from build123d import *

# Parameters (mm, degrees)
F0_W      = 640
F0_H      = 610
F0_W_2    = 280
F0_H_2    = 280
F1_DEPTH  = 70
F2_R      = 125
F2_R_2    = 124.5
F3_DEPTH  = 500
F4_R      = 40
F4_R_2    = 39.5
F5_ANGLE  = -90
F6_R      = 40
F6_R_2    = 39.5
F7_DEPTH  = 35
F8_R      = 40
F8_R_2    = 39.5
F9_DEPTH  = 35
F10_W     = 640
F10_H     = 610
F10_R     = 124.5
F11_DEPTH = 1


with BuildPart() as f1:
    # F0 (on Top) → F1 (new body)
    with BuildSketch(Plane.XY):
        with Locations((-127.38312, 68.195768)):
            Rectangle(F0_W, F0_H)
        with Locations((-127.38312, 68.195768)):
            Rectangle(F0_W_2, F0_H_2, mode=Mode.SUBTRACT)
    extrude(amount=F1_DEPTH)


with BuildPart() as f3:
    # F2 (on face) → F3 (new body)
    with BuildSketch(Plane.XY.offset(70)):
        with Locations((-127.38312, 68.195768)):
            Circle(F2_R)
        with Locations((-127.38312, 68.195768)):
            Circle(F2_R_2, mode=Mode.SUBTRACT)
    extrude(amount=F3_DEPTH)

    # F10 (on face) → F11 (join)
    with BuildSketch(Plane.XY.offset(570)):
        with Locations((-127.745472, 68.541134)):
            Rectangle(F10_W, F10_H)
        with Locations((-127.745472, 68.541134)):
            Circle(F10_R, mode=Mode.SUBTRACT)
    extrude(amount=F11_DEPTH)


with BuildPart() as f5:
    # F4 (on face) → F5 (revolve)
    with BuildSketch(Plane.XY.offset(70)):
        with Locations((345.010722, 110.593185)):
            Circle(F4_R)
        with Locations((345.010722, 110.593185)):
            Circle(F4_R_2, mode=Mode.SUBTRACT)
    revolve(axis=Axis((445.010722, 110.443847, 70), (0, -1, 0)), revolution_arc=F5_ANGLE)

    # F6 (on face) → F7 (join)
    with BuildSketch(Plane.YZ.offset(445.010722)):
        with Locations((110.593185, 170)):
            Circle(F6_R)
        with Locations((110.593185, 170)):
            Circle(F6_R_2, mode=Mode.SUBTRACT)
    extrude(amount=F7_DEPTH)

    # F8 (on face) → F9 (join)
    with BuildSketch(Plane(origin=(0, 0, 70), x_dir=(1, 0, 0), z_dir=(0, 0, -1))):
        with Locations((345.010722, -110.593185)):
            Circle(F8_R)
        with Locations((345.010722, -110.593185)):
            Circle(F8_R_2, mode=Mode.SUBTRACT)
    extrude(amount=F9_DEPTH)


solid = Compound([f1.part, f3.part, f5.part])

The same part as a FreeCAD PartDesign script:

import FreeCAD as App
import Part
import Sketcher

V = App.Vector

doc = App.newDocument("Part")
body = doc.addObject("PartDesign::Body", "Body")

# Sketch on XY plane
sketch1 = body.newObject("Sketcher::SketchObject", "Sketch")
sketch1.AttachmentSupport = (doc.getObject("XY_Plane"), [""])
sketch1.MapMode = "FlatFace"
sketch1.addGeometry(Part.LineSegment(V(-447, 373, 0), V(-447, -237, 0)), False)
sketch1.addGeometry(Part.LineSegment(V(-447, -237, 0), V(193, -237, 0)), False)
sketch1.addGeometry(Part.LineSegment(V(193, -237, 0), V(193, 373, 0)), False)
sketch1.addGeometry(Part.LineSegment(V(193, 373, 0), V(-447, 373, 0)), False)
sketch1.addGeometry(Part.LineSegment(V(13, -72, 0), V(-267, -72, 0)), False)
sketch1.addGeometry(Part.LineSegment(V(-267, -72, 0), V(-267, 208, 0)), False)
sketch1.addGeometry(Part.LineSegment(V(-267, 208, 0), V(13, 208, 0)), False)
sketch1.addGeometry(Part.LineSegment(V(13, 208, 0), V(13, -72, 0)), False)
sketch1.addConstraint(Sketcher.Constraint("Coincident", 0, 2, 1, 1))
sketch1.addConstraint(Sketcher.Constraint("Coincident", 1, 2, 2, 1))
sketch1.addConstraint(Sketcher.Constraint("Coincident", 2, 2, 3, 1))
sketch1.addConstraint(Sketcher.Constraint("Coincident", 3, 2, 0, 1))
sketch1.addConstraint(Sketcher.Constraint("Coincident", 4, 2, 5, 1))
sketch1.addConstraint(Sketcher.Constraint("Coincident", 5, 2, 6, 1))
sketch1.addConstraint(Sketcher.Constraint("Coincident", 6, 2, 7, 1))
sketch1.addConstraint(Sketcher.Constraint("Coincident", 7, 2, 4, 1))
sketch1.addConstraint(Sketcher.Constraint("Vertical", 0))
sketch1.addConstraint(Sketcher.Constraint("Horizontal", 1))
sketch1.addConstraint(Sketcher.Constraint("Vertical", 2))
sketch1.addConstraint(Sketcher.Constraint("Horizontal", 3))
sketch1.addConstraint(Sketcher.Constraint("Horizontal", 4))
sketch1.addConstraint(Sketcher.Constraint("Vertical", 5))
sketch1.addConstraint(Sketcher.Constraint("Horizontal", 6))
sketch1.addConstraint(Sketcher.Constraint("Vertical", 7))
sketch1.addConstraint(Sketcher.Constraint("Equal", 6, 5))
sketch1.addConstraint(Sketcher.Constraint("DistanceX", 1, 1, 1, 2, 640.0))
sketch1.addConstraint(Sketcher.Constraint("DistanceX", 4, 2, 4, 1, 280.0))
sketch1.addConstraint(Sketcher.Constraint("DistanceY", 0, 2, 0, 1, 610.0))
sketch1.addConstraint(Sketcher.Constraint("DistanceX", 0, 2, 4, 2, 180.0))
sketch1.addConstraint(Sketcher.Constraint("DistanceY", 0, 2, 4, 2, 165.0))
sketch1.addConstraint(Sketcher.Constraint("DistanceX", 0, 2, -1, 1, 447.38312))
sketch1.addConstraint(Sketcher.Constraint("DistanceY", -1, 1, 2, 2, 373.195768))
pad1 = body.newObject("PartDesign::Pad", "Pad")
pad1.Profile = sketch1
pad1.Length = 70
body2 = doc.addObject("PartDesign::Body", "Body001")

# Sketch on XY plane
sketch2 = body2.newObject("Sketcher::SketchObject", "Sketch001")
sketch2.AttachmentSupport = (doc.getObject("XY_Plane001"), [""])
sketch2.MapMode = "FlatFace"
sketch2.AttachmentOffset = App.Placement(V(0, 0, 70), App.Rotation())
sketch2.addGeometry(Part.Circle(V(-127, 68, 0), V(0, 0, 1), 125), False)
sketch2.addGeometry(Part.Circle(V(-127, 68, 0), V(0, 0, 1), 124), False)
sketch2.addConstraint(Sketcher.Constraint("Coincident", 1, 3, 0, 3))
sketch2.addConstraint(Sketcher.Constraint("Diameter", 0, 250.0))
sketch2.addConstraint(Sketcher.Constraint("Diameter", 1, 249.0))
sketch2.addConstraint(Sketcher.Constraint("DistanceX", 0, 3, -1, 1, 127.38312))
sketch2.addConstraint(Sketcher.Constraint("DistanceY", -1, 1, 0, 3, 68.195768))
pad2 = body2.newObject("PartDesign::Pad", "Pad001")
pad2.Profile = sketch2
pad2.Length = 500

# Sketch on XY plane
sketch3 = body2.newObject("Sketcher::SketchObject", "Sketch002")
sketch3.AttachmentSupport = (doc.getObject("XY_Plane001"), [""])
sketch3.MapMode = "FlatFace"
sketch3.AttachmentOffset = App.Placement(V(0, 0, 570), App.Rotation())
sketch3.addGeometry(Part.LineSegment(V(-448, 374, 0), V(-448, -236, 0)), False)
sketch3.addGeometry(Part.LineSegment(V(-448, -236, 0), V(192, -236, 0)), False)
sketch3.addGeometry(Part.LineSegment(V(192, -236, 0), V(192, 374, 0)), False)
sketch3.addGeometry(Part.LineSegment(V(192, 374, 0), V(-448, 374, 0)), False)
sketch3.addGeometry(Part.Circle(V(-128, 69, 0), V(0, 0, 1), 124), False)
sketch3.addConstraint(Sketcher.Constraint("Coincident", 0, 2, 1, 1))
sketch3.addConstraint(Sketcher.Constraint("Coincident", 1, 2, 2, 1))
sketch3.addConstraint(Sketcher.Constraint("Coincident", 2, 2, 3, 1))
sketch3.addConstraint(Sketcher.Constraint("Coincident", 3, 2, 0, 1))
sketch3.addConstraint(Sketcher.Constraint("Vertical", 0))
sketch3.addConstraint(Sketcher.Constraint("Horizontal", 1))
sketch3.addConstraint(Sketcher.Constraint("Vertical", 2))
sketch3.addConstraint(Sketcher.Constraint("Horizontal", 3))
sketch3.addConstraint(Sketcher.Constraint("Diameter", 4, 249.0))
sketch3.addConstraint(Sketcher.Constraint("DistanceX", 1, 1, 1, 2, 640.0))
sketch3.addConstraint(Sketcher.Constraint("DistanceY", 0, 2, 0, 1, 610.0))
sketch3.addConstraint(Sketcher.Constraint("DistanceX", 0, 2, 4, 3, 320.0))
sketch3.addConstraint(Sketcher.Constraint("DistanceY", 0, 2, 4, 3, 305.0))
sketch3.addConstraint(Sketcher.Constraint("DistanceX", 0, 2, -1, 1, 447.745472))
sketch3.addConstraint(Sketcher.Constraint("DistanceY", -1, 1, 4, 3, 68.541134))
pad3 = body2.newObject("PartDesign::Pad", "Pad002")
pad3.Profile = sketch3
pad3.Length = 1
body3 = doc.addObject("PartDesign::Body", "Body002")

# Sketch on XY plane
sketch4 = body3.newObject("Sketcher::SketchObject", "Sketch003")
sketch4.AttachmentSupport = (doc.getObject("XY_Plane002"), [""])
sketch4.MapMode = "FlatFace"
sketch4.AttachmentOffset = App.Placement(V(0, 0, 70), App.Rotation())
sketch4.addGeometry(Part.Circle(V(345, 111, 0), V(0, 0, 1), 40), False)
sketch4.addGeometry(Part.Circle(V(345, 111, 0), V(0, 0, 1), 40), False)
sketch4.addGeometry(Part.LineSegment(V(445, 111, 0), V(445, 101, 0)), True)  # axis
sketch4.addConstraint(Sketcher.Constraint("Vertical", 2))
sketch4.addConstraint(Sketcher.Constraint("Coincident", 1, 3, 0, 3))
sketch4.addConstraint(Sketcher.Constraint("Horizontal", 1, 3, 2, 1))
sketch4.addConstraint(Sketcher.Constraint("Diameter", 0, 80.0))
sketch4.addConstraint(Sketcher.Constraint("Diameter", 1, 79.0))
sketch4.addConstraint(Sketcher.Constraint("DistanceY", 2, 2, 2, 1, 10.0))
sketch4.addConstraint(Sketcher.Constraint("DistanceX", 0, 3, 2, 1, 100.0))
sketch4.addConstraint(Sketcher.Constraint("DistanceX", -1, 1, 0, 3, 345.010722))
sketch4.addConstraint(Sketcher.Constraint("DistanceY", -1, 1, 0, 3, 110.593185))
revolution = body3.newObject("PartDesign::Revolution", "Revolution")
revolution.Profile = sketch4
revolution.ReferenceAxis = (sketch4, ["Axis0"])
revolution.Angle = 90
revolution.Reversed = True

# Sketch on YZ plane
sketch5 = body3.newObject("Sketcher::SketchObject", "Sketch004")
sketch5.AttachmentSupport = (doc.getObject("YZ_Plane002"), [""])
sketch5.MapMode = "FlatFace"
sketch5.AttachmentOffset = App.Placement(V(0, 0, 445.010722), App.Rotation())
sketch5.addGeometry(Part.Circle(V(111, 170, 0), V(0, 0, 1), 40), False)
sketch5.addGeometry(Part.Circle(V(111, 170, 0), V(0, 0, 1), 40), False)
sketch5.addConstraint(Sketcher.Constraint("Coincident", 1, 3, 0, 3))
sketch5.addConstraint(Sketcher.Constraint("Diameter", 0, 80.0))
sketch5.addConstraint(Sketcher.Constraint("Diameter", 1, 79.0))
sketch5.addConstraint(Sketcher.Constraint("DistanceY", -1, 1, 0, 3, 170.0))
sketch5.addConstraint(Sketcher.Constraint("DistanceX", -1, 1, 0, 3, 110.593185))
pad4 = body3.newObject("PartDesign::Pad", "Pad003")
pad4.Profile = sketch5
pad4.Length = 35

# Sketch on XY plane
sketch6 = body3.newObject("Sketcher::SketchObject", "Sketch005")
sketch6.AttachmentSupport = (doc.getObject("XY_Plane002"), [""])
sketch6.MapMode = "FlatFace"
sketch6.AttachmentOffset = App.Placement(V(0, 0, 70), App.Rotation())
sketch6.addGeometry(Part.Circle(V(345, 111, 0), V(0, 0, 1), 40), False)
sketch6.addGeometry(Part.Circle(V(345, 111, 0), V(0, 0, 1), 40), False)
sketch6.addConstraint(Sketcher.Constraint("Coincident", 1, 3, 0, 3))
sketch6.addConstraint(Sketcher.Constraint("Diameter", 0, 80.0))
sketch6.addConstraint(Sketcher.Constraint("Diameter", 1, 79.0))
sketch6.addConstraint(Sketcher.Constraint("DistanceX", -1, 1, 0, 3, 345.010722))
sketch6.addConstraint(Sketcher.Constraint("DistanceY", -1, 1, 0, 3, 110.593185))
pad5 = body3.newObject("PartDesign::Pad", "Pad004")
pad5.Profile = sketch6
pad5.Length = 35
pad5.Reversed = True

doc.recompute()
